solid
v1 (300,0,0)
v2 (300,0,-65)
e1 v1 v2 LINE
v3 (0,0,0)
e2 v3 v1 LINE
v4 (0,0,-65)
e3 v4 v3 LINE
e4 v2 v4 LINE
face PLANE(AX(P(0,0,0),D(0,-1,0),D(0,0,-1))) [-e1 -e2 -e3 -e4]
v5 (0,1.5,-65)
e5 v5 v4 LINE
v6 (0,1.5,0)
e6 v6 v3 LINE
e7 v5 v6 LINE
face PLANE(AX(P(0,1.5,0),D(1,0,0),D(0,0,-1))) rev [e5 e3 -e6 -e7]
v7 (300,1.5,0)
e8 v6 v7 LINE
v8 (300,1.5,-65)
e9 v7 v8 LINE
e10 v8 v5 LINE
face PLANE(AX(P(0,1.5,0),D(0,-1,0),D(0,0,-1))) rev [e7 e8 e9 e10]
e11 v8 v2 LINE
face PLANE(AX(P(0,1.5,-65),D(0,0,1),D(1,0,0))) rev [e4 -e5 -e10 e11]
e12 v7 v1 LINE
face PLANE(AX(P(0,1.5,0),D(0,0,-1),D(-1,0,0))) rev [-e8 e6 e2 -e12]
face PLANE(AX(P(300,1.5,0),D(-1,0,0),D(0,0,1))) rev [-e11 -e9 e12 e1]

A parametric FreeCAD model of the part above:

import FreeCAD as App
import Part
import Sketcher
from FreeCAD import Vector
Q = App.Units.Quantity


def add_polygon(sketch, points):
    """Adds a closed chain of lines whose ends are joined by coincident constraints."""
    first, n = sketch.GeometryCount, len(points)
    for a, b in zip(points, points[1:] + points[:1]):
        sketch.addGeometry(Part.LineSegment(App.Vector(*a, 0), App.Vector(*b, 0)), False)
    for i in range(n):
        sketch.addConstraint(Sketcher.Constraint("Coincident", first + i, 2, first + (i + 1) % n, 1))

doc = App.newDocument("Part")
body = doc.addObject("PartDesign::Body", "Body")

# Sketch on XZ plane
sketch1 = body.newObject("Sketcher::SketchObject", "Sketch")
sketch1.AttachmentSupport = (doc.getObject("XZ_Plane"), [""])
sketch1.MapMode = "FlatFace"
add_polygon(sketch1, [(0, -65), (0, 0), (300, 0), (300, -65)])  # lines 0-3
sketch1.addConstraint([
    Sketcher.Constraint("Vertical", 0),
    Sketcher.Constraint("Horizontal", 1),
    Sketcher.Constraint("Vertical", 2),
    Sketcher.Constraint("Horizontal", 3),
    Sketcher.Constraint("Coincident", 0, 2, -1, 1),
    Sketcher.Constraint("DistanceX", 1, 1, 1, 2, Q("300 mm")),
    Sketcher.Constraint("DistanceY", 0, 1, 0, 2, Q("65 mm")),
])
pad1 = body.newObject("PartDesign::Pad", "Pad")
pad1.Profile = sketch1
pad1.Length = 1.5
pad1.Reversed = True

doc.recompute()
